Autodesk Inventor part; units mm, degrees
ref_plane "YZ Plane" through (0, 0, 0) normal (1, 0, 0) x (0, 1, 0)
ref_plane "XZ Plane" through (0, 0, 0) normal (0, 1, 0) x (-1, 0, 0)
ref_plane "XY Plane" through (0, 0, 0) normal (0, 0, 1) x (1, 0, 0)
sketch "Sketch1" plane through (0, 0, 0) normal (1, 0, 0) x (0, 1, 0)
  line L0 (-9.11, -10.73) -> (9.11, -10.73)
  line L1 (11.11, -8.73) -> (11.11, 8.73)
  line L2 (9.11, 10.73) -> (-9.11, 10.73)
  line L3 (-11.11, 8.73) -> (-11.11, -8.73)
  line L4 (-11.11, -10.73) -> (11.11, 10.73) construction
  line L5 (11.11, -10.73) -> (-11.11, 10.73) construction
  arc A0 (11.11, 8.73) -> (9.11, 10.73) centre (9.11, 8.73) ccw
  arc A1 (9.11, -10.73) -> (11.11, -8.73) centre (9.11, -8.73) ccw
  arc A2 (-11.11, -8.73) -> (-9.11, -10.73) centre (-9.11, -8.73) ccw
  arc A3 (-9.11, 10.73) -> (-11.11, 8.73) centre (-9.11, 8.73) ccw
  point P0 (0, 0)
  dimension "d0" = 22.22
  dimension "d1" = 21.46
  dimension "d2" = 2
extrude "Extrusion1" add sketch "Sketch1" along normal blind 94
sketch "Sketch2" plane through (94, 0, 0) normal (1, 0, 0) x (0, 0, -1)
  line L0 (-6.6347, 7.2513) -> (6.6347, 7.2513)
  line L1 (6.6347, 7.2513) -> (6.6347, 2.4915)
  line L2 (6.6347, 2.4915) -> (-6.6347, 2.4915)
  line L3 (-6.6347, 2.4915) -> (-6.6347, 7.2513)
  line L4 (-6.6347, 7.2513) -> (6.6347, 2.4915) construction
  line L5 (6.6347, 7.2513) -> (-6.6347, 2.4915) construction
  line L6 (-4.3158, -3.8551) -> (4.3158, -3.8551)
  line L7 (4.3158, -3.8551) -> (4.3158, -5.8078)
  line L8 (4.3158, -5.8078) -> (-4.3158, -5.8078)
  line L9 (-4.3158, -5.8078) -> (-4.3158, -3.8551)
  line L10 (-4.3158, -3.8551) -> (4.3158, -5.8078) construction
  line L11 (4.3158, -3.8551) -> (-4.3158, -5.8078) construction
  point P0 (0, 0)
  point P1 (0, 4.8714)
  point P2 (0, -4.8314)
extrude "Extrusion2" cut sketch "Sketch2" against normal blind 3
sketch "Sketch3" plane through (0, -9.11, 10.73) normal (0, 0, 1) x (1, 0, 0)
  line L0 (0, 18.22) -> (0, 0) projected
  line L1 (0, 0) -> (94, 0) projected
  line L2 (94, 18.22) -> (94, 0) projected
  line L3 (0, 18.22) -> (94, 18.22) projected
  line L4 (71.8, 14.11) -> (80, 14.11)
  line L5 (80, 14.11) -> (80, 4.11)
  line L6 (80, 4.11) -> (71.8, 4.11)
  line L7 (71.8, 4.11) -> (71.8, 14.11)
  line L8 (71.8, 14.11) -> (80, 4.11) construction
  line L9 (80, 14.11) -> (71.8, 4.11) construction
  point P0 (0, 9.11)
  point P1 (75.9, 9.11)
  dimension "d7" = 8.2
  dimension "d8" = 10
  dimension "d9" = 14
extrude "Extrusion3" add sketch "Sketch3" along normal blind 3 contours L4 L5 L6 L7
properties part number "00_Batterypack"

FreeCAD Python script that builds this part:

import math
import FreeCAD as App
import Part
import Sketcher

V = App.Vector
Q = App.Units.Quantity


def add_polygon(sketch, points):
    """Adds a closed chain of lines whose ends are joined by coincident constraints."""
    first, n = sketch.GeometryCount, len(points)
    for a, b in zip(points, points[1:] + points[:1]):
        sketch.addGeometry(Part.LineSegment(App.Vector(*a, 0), App.Vector(*b, 0)), False)
    for i in range(n):
        sketch.addConstraint(Sketcher.Constraint("Coincident", first + i, 2, first + (i + 1) % n, 1))

doc = App.newDocument("Part")
params = doc.addObject("Spreadsheet::Sheet", "Params")
for row, (alias, value) in enumerate([
    ("sketch1_radius", "2 mm"),
    ("sketch1_width", "18.22 mm"),
    ("sketch1_height", "17.46 mm"),
    ("pad1_length", "94 mm"),
    ("pocket1_length", "3 mm"),
    ("sketch3_height", "10 mm"),
    ("sketch3_width", "8.2 mm"),
    ("pad2_length", "3 mm"),
], start=1):
    params.set(f"A{row}", alias)
    params.set(f"B{row}", "=" + value)
    params.setAlias(f"B{row}", alias)

body = doc.addObject("PartDesign::Body", "Body")

sketch1 = doc.addObject("Sketcher::SketchObject", "Sketch")
body.addObject(sketch1)
sketch1.AttachmentSupport = (doc.YZ_Plane, [""])
sketch1.MapMode = "FlatFace"
sketch1.addGeometry([
    Part.ArcOfCircle(Part.Circle(V(-9.1, -8.7, 0), V(0, 0, 1), 2), math.radians(180), math.radians(270)),
    Part.LineSegment(V(-9.1, -10.7, 0), V(9.1, -10.7, 0)),
    Part.ArcOfCircle(Part.Circle(V(9.1, -8.7, 0), V(0, 0, 1), 2), math.radians(-90), math.radians(0)),
    Part.LineSegment(V(11.1, -8.7, 0), V(11.1, 8.7, 0)),
    Part.ArcOfCircle(Part.Circle(V(9.1, 8.7, 0), V(0, 0, 1), 2), math.radians(0), math.radians(90)),
    Part.LineSegment(V(9.1, 10.7, 0), V(-9.1, 10.7, 0)),
    Part.ArcOfCircle(Part.Circle(V(-9.1, 8.7, 0), V(0, 0, 1), 2), math.radians(90), math.radians(180)),
    Part.LineSegment(V(-11.1, 8.7, 0), V(-11.1, -8.7, 0)),
], False)
sketch1.addConstraint([
    Sketcher.Constraint("Tangent", 0, 2, 1, 1),
    Sketcher.Constraint("Tangent", 1, 2, 2, 1),
    Sketcher.Constraint("Tangent", 2, 2, 3, 1),
    Sketcher.Constraint("Tangent", 3, 2, 4, 1),
    Sketcher.Constraint("Tangent", 4, 2, 5, 1),
    Sketcher.Constraint("Tangent", 5, 2, 6, 1),
    Sketcher.Constraint("Tangent", 6, 2, 7, 1),
    Sketcher.Constraint("Tangent", 7, 2, 0, 1),
    Sketcher.Constraint("Horizontal", 1),
    Sketcher.Constraint("Vertical", 3),
    Sketcher.Constraint("Horizontal", 5),
    Sketcher.Constraint("Vertical", 7),
    Sketcher.Constraint("Equal", 0, 2),
    Sketcher.Constraint("Equal", 2, 4),
    Sketcher.Constraint("Equal", 4, 6),
    Sketcher.Constraint("Symmetric", 0, 3, 4, 3, -1, 1),
    Sketcher.Constraint("Radius", 0, Q("2 mm")),
    Sketcher.Constraint("DistanceX", 1, 1, 1, 2, Q("18.22 mm")),
    Sketcher.Constraint("DistanceY", 3, 1, 3, 2, Q("17.46 mm")),
])
sketch1.setExpression("Constraints[16]", "Params.sketch1_radius")
sketch1.setExpression("Constraints[17]", "Params.sketch1_width")
sketch1.setExpression("Constraints[18]", "Params.sketch1_height")
pad1 = doc.addObject("PartDesign::Pad", "Pad")
body.addObject(pad1)
pad1.Profile = sketch1
pad1.setExpression("Length", "Params.pad1_length")

sketch2 = doc.addObject("Sketcher::SketchObject", "Sketch001")
body.addObject(sketch2)
sketch2.AttachmentSupport = (doc.YZ_Plane, [""])
sketch2.MapMode = "FlatFace"
sketch2.AttachmentOffset = App.Placement(V(0, 0, 94), App.Rotation())
add_polygon(sketch2, [(7.3, -6.6), (7.3, 6.6), (2.5, 6.6), (2.5, -6.6)])
add_polygon(sketch2, [(-3.9, -4.3), (-3.9, 4.3), (-5.8, 4.3), (-5.8, -4.3)])
sketch2.addConstraint([
    Sketcher.Constraint("Vertical", 0),
    Sketcher.Constraint("Horizontal", 1),
    Sketcher.Constraint("Vertical", 2),
    Sketcher.Constraint("Horizontal", 3),
    Sketcher.Constraint("Vertical", 4),
    Sketcher.Constraint("Horizontal", 5),
    Sketcher.Constraint("Vertical", 6),
    Sketcher.Constraint("Horizontal", 7),
    Sketcher.Constraint("DistanceX", 1, 2, 1, 1, Q("4.7598 mm")),
    Sketcher.Constraint("DistanceX", 5, 2, 5, 1, Q("1.9527 mm")),
    Sketcher.Constraint("DistanceY", 0, 1, 0, 2, Q("13.2694 mm")),
    Sketcher.Constraint("DistanceY", 4, 1, 4, 2, Q("8.6316 mm")),
    Sketcher.Constraint("DistanceX", 4, 2, -1, 1, Q("3.855 mm")),
    Sketcher.Constraint("DistanceY", 4, 2, 1, 2, Q("2.319 mm")),
    Sketcher.Constraint("DistanceX", 5, 2, 0, 2, Q("13.059 mm")),
    Sketcher.Constraint("DistanceY", -1, 1, 0, 2, Q("6.6347 mm")),
])
pocket1 = doc.addObject("PartDesign::Pocket", "Pocket")
body.addObject(pocket1)
pocket1.Profile = sketch2
pocket1.setExpression("Length", "Params.pocket1_length")

sketch3 = doc.addObject("Sketcher::SketchObject", "Sketch002")
body.addObject(sketch3)
sketch3.AttachmentSupport = (doc.XY_Plane, [""])
sketch3.MapMode = "FlatFace"
sketch3.AttachmentOffset = App.Placement(V(0, 0, 10.73), App.Rotation())
add_polygon(sketch3, [(80, 5), (72, 5), (72, -5), (80, -5)])
sketch3.addConstraint([
    Sketcher.Constraint("Horizontal", 0),
    Sketcher.Constraint("Vertical", 1),
    Sketcher.Constraint("Horizontal", 2),
    Sketcher.Constraint("Vertical", 3),
    Sketcher.Constraint("DistanceY", 1, 2, 1, 1, Q("10 mm")),
    Sketcher.Constraint("DistanceX", 0, 2, 0, 1, Q("8.2 mm")),
    Sketcher.Constraint("DistanceY", -1, 1, 0, 2, Q("5 mm")),
    Sketcher.Constraint("DistanceX", -1, 1, 2, 2, Q("80 mm")),
])
sketch3.setExpression("Constraints[8]", "Params.sketch3_height")
sketch3.setExpression("Constraints[9]", "Params.sketch3_width")
pad2 = doc.addObject("PartDesign::Pad", "Pad001")
body.addObject(pad2)
pad2.Profile = sketch3
pad2.setExpression("Length", "Params.pad2_length")

doc.recompute()
